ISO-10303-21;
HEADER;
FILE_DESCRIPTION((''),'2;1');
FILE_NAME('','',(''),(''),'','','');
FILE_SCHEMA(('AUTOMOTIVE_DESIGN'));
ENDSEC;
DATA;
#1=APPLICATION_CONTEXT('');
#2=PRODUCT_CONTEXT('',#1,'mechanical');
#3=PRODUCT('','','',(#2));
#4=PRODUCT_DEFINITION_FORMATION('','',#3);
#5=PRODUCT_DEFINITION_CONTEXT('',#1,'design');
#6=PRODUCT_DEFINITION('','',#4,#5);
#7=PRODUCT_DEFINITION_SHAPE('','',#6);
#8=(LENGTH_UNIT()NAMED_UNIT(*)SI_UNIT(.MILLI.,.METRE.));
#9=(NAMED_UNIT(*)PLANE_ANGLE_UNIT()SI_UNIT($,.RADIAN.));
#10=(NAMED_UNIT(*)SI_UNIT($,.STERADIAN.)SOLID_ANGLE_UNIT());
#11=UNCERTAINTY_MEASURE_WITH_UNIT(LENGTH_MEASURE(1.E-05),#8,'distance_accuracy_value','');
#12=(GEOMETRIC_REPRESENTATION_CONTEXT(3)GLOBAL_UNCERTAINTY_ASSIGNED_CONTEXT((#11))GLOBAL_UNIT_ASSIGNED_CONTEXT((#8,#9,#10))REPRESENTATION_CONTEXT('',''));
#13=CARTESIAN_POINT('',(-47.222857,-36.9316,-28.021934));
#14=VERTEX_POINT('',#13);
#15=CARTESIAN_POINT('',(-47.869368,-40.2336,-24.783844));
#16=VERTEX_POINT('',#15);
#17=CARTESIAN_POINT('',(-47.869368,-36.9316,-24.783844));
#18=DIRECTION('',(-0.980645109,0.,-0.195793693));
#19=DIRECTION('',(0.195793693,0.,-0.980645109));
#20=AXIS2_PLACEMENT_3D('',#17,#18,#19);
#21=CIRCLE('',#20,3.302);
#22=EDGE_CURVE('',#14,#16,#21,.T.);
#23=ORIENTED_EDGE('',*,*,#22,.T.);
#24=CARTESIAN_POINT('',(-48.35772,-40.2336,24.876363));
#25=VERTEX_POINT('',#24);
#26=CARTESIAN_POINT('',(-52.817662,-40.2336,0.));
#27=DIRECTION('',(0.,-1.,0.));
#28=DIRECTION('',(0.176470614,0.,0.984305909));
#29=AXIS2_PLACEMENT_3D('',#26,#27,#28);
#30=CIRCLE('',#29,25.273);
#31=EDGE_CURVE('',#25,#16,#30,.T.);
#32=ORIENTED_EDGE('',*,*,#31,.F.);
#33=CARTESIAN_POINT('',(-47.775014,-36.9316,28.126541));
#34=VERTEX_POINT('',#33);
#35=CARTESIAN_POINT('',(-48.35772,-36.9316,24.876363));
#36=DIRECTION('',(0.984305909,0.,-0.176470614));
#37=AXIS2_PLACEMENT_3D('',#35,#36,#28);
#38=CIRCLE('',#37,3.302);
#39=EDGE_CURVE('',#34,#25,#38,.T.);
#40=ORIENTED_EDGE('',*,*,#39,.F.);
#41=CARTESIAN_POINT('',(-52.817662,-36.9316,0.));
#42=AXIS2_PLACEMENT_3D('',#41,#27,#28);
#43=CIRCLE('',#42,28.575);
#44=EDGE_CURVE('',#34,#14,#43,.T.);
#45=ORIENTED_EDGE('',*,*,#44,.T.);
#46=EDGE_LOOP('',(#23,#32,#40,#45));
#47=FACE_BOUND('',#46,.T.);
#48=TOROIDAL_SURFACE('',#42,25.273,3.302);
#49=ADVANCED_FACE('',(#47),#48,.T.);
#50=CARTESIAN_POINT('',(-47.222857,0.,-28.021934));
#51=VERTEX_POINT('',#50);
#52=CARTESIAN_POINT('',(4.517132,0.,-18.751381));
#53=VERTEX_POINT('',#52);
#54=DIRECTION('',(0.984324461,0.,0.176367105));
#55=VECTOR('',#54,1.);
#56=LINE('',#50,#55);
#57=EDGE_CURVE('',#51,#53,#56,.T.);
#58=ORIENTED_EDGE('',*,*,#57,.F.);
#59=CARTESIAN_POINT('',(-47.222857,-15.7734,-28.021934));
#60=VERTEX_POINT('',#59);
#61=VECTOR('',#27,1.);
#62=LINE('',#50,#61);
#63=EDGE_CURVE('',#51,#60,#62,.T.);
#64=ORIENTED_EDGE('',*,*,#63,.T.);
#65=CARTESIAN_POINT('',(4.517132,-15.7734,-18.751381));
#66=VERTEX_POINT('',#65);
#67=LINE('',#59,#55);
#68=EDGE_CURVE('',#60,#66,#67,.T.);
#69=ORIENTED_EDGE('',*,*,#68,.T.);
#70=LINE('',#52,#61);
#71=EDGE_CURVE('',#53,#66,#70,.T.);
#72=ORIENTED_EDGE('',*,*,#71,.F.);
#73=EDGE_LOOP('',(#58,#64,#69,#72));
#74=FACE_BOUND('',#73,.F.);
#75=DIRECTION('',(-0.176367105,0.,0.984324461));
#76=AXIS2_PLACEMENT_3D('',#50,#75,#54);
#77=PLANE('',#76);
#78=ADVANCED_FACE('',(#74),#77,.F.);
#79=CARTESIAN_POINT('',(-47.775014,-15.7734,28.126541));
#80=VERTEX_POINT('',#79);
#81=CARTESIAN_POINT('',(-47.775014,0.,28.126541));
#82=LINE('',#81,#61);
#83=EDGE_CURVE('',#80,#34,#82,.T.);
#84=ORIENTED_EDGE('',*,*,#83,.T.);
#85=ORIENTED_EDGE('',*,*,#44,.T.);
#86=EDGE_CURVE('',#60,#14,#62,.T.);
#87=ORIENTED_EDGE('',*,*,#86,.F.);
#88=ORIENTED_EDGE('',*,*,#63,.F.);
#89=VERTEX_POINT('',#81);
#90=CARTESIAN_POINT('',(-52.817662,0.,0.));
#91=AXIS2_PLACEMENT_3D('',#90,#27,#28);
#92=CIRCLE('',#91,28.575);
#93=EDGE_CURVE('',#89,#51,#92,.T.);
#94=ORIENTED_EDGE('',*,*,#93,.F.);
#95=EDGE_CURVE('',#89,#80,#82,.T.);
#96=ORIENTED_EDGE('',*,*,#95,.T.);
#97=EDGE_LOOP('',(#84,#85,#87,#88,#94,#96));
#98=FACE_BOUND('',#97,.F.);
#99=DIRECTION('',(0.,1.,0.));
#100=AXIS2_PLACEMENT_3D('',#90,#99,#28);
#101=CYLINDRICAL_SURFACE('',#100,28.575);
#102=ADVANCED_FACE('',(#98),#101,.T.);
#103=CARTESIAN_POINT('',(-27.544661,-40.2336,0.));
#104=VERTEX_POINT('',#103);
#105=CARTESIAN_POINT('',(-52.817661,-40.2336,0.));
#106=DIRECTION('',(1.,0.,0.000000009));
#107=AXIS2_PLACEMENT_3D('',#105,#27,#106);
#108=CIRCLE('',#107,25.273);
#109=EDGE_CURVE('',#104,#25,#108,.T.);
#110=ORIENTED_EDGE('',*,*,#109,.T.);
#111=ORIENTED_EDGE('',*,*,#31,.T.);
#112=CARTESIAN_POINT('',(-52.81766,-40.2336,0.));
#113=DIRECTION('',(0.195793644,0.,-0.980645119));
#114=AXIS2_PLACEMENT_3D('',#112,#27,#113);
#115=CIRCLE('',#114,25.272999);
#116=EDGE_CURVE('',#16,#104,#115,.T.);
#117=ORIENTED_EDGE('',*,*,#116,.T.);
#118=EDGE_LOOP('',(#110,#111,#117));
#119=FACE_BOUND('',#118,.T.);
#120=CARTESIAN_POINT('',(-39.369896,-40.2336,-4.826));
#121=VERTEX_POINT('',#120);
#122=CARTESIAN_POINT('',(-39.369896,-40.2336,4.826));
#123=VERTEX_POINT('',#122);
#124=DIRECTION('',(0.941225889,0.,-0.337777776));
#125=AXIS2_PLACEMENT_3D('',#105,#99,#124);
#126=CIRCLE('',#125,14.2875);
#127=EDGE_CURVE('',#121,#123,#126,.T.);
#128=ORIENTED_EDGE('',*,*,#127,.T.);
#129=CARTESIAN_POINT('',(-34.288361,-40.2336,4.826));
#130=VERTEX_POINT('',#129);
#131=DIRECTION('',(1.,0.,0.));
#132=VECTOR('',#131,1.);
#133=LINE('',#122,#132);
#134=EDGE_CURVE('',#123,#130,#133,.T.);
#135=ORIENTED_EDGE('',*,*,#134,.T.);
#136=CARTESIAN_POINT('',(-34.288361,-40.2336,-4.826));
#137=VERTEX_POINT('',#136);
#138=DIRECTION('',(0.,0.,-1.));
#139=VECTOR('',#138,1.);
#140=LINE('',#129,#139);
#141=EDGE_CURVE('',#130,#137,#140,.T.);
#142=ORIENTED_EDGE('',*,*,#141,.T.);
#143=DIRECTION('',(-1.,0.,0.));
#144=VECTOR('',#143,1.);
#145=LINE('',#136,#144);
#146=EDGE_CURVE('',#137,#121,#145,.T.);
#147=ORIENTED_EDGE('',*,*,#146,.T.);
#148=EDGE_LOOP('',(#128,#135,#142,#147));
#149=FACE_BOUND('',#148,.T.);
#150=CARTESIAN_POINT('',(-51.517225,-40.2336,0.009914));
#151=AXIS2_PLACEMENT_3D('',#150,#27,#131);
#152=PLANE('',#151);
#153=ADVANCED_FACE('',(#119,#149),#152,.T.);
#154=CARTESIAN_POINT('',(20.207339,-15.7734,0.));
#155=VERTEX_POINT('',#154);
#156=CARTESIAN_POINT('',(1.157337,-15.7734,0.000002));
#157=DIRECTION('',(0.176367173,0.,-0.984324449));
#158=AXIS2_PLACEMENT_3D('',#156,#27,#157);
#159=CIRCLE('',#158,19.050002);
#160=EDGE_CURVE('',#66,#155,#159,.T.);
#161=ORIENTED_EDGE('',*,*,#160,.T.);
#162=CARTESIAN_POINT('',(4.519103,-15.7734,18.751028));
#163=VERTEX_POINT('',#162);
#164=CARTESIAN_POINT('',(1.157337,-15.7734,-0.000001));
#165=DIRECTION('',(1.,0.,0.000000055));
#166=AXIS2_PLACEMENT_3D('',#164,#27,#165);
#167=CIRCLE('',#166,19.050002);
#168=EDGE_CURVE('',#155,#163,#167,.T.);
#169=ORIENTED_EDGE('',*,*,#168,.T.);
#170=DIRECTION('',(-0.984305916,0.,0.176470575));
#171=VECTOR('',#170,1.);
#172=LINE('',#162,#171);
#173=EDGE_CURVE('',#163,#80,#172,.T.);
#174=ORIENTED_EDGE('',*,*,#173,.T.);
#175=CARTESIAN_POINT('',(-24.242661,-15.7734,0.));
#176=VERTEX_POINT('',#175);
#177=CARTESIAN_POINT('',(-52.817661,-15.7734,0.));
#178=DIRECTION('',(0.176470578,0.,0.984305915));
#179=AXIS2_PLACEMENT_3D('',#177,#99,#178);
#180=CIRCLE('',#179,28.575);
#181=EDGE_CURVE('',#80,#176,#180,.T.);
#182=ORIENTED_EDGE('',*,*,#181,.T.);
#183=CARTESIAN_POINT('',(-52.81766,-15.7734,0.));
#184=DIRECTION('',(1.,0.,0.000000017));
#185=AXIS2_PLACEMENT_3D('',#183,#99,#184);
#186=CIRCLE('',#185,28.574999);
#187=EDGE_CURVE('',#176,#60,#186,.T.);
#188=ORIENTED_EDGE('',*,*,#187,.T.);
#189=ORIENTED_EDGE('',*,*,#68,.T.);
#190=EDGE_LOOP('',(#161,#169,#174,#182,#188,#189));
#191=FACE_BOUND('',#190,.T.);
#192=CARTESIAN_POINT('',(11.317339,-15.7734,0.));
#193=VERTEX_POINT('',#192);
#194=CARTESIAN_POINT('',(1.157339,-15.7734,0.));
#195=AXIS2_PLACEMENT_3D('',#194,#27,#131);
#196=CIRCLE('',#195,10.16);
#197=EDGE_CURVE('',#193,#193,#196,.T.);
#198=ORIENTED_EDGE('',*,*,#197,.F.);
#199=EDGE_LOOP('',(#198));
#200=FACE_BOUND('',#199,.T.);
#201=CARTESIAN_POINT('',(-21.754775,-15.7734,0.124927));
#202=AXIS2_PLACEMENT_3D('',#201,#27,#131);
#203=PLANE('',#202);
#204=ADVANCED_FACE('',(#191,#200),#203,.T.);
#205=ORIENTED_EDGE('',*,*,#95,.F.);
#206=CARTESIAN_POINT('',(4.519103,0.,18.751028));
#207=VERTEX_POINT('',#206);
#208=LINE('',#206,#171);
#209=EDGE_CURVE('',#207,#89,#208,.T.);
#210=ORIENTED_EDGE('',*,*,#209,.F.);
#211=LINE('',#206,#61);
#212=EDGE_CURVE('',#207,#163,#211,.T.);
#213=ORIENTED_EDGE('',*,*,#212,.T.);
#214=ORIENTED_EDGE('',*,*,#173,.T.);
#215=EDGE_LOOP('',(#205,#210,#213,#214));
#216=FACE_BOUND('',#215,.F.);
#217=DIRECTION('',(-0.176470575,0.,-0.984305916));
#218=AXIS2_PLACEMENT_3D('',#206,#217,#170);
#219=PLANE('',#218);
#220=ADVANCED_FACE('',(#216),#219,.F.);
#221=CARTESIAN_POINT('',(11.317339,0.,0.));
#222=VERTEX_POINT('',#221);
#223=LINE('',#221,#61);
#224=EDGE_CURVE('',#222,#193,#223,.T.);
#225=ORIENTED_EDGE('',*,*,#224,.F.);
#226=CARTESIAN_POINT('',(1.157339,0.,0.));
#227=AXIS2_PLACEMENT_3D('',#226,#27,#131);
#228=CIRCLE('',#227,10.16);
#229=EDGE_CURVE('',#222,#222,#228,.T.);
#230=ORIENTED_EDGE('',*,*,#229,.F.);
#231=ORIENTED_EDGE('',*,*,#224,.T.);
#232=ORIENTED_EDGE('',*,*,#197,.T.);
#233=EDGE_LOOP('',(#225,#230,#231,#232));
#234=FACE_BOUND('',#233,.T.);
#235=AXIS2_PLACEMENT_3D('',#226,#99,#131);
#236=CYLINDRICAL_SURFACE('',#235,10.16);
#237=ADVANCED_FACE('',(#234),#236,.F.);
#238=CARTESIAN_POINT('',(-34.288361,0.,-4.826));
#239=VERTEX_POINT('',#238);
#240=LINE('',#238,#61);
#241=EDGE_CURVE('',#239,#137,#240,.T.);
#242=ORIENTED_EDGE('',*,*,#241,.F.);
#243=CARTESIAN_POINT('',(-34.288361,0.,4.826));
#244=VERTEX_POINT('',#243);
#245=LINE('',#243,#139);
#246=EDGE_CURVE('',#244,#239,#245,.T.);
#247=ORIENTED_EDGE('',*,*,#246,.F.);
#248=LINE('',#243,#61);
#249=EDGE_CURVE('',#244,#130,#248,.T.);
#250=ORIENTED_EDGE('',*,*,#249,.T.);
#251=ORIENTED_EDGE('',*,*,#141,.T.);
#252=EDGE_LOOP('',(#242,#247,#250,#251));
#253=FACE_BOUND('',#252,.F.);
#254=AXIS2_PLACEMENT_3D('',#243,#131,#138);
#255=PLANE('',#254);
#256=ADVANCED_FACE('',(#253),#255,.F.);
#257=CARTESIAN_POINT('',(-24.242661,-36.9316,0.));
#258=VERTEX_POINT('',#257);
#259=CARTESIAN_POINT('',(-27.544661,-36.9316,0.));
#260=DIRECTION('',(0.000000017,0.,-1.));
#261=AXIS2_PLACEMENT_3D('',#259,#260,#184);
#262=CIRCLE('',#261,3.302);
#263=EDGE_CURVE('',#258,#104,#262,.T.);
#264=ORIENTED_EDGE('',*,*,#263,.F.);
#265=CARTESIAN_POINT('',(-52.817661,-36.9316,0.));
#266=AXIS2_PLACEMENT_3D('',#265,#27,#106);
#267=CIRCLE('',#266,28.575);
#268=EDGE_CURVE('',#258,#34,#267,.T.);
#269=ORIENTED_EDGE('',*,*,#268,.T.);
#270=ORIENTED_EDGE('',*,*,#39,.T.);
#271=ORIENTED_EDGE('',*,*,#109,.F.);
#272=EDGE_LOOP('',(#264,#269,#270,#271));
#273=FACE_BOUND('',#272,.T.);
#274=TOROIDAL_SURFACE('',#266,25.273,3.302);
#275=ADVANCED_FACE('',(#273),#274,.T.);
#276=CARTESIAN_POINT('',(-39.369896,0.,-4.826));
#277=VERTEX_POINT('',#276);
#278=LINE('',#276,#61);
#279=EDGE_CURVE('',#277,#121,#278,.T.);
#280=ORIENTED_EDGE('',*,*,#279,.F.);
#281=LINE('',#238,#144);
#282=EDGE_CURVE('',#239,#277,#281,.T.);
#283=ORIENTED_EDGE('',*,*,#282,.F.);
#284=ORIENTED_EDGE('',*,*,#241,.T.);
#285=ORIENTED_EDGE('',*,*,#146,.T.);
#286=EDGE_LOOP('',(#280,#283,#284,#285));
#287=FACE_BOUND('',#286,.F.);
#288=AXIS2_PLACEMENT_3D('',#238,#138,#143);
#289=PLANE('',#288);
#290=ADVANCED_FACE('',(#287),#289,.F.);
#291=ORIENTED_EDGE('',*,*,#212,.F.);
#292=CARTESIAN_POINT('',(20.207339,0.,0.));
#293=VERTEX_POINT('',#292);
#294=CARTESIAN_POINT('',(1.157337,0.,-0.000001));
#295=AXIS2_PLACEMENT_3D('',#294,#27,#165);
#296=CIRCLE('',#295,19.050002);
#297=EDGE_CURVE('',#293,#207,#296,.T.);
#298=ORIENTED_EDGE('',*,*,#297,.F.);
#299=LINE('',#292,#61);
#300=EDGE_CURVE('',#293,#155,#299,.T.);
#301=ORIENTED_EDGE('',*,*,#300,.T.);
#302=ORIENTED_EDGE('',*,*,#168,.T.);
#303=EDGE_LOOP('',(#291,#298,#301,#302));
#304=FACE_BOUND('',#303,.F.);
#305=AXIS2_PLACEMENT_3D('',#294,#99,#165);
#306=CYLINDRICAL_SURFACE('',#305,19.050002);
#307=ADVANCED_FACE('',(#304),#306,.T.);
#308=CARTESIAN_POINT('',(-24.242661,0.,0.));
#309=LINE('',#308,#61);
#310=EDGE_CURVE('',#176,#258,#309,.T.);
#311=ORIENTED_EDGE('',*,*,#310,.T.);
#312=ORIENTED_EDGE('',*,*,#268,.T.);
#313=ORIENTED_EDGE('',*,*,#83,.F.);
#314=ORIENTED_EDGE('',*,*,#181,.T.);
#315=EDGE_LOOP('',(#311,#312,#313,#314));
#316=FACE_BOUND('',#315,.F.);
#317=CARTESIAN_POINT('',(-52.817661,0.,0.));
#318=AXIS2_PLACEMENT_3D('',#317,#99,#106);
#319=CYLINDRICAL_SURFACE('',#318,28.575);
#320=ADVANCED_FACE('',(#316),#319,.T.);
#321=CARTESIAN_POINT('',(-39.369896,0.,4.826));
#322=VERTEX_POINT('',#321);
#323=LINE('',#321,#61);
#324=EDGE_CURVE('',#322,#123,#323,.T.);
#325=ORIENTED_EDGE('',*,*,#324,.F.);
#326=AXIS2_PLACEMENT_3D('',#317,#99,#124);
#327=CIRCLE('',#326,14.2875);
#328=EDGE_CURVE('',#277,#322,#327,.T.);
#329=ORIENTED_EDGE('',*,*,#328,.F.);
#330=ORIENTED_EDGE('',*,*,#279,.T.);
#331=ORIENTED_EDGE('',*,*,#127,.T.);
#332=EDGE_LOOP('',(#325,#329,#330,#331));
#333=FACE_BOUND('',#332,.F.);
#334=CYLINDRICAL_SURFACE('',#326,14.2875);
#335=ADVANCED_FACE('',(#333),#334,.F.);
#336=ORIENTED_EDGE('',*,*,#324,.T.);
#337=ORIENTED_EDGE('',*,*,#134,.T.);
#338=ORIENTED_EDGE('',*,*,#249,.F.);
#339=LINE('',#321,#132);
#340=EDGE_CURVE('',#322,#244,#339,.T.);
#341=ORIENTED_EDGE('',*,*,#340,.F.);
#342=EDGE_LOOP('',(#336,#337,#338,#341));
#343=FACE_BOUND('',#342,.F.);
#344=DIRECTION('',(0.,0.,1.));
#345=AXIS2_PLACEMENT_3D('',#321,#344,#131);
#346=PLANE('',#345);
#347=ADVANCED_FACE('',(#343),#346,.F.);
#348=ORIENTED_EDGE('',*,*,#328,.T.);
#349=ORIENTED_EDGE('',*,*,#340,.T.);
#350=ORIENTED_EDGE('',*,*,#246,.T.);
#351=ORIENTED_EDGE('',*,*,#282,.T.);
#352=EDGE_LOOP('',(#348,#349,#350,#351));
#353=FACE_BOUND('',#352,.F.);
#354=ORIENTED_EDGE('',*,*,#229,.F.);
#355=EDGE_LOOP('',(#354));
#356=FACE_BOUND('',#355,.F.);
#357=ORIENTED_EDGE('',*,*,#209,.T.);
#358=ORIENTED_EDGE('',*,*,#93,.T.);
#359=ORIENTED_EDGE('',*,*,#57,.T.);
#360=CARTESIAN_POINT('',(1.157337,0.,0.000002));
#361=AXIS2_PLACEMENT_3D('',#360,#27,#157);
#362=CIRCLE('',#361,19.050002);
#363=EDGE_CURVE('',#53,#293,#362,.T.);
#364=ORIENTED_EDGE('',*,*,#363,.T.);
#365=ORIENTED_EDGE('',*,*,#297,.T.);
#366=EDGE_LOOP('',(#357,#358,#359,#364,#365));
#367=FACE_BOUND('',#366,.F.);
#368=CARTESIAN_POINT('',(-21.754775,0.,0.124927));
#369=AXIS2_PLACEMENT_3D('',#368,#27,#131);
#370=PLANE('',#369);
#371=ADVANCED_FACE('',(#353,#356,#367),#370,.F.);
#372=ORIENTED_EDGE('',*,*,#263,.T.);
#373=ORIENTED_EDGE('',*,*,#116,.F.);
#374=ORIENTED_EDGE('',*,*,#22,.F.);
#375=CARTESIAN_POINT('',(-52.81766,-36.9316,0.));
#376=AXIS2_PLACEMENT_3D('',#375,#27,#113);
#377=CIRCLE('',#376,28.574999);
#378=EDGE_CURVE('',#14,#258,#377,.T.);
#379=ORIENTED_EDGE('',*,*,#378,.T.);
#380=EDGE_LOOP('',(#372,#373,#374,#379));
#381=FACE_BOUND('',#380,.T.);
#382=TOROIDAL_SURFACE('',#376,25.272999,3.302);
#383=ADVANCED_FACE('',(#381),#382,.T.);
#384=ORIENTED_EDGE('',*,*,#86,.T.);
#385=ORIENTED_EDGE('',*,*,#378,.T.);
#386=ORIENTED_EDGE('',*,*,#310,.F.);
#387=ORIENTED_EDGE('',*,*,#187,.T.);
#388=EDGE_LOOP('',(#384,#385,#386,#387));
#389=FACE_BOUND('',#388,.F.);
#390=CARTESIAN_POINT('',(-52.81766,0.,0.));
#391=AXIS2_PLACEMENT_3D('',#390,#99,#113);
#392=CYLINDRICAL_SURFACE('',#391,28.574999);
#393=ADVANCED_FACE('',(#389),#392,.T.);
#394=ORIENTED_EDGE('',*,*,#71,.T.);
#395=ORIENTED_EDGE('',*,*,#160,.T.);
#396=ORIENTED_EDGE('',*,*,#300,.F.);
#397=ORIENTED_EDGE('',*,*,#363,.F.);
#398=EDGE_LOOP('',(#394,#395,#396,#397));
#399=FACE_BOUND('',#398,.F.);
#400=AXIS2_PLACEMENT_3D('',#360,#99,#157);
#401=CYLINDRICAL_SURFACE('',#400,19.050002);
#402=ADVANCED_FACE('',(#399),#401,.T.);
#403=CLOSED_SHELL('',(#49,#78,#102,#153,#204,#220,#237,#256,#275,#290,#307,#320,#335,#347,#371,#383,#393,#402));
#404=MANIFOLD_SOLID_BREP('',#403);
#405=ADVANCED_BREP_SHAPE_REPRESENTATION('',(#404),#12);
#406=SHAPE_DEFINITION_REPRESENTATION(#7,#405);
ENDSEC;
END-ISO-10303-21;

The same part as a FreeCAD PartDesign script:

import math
import FreeCAD as App
import Part
import Sketcher
from FreeCAD import Vector
Q = App.Units.Quantity


def edges_at(feature, points):
    """Names of the edges that pass closest to the given points."""
    edges = feature.Shape.Edges
    near = lambda p: min(range(len(edges)), key=lambda i: edges[i].distToShape(Part.Vertex(*p))[0])
    return sorted({f"Edge{near(p) + 1}" for p in points})

doc = App.newDocument("Part")
body = doc.addObject("PartDesign::Body", "Body")

sketch1 = doc.addObject("Sketcher::SketchObject", "Sketch")
body.addObject(sketch1)
sketch1.AttachmentSupport = (doc.XZ_Plane, [""])
sketch1.MapMode = "FlatFace"
sketch1.addGeometry(Part.ArcOfCircle(Part.Circle(Vector(-53, 0, 0), Vector(0, 0, 1), 29), math.radians(-79), math.radians(0)), False)
sketch1.addGeometry(Part.ArcOfCircle(Part.Circle(Vector(-53, 0, 0), Vector(0, 0, 1), 29), math.radians(0), math.radians(80)), False)
sketch1.addGeometry(Part.ArcOfCircle(Part.Circle(Vector(-53, 0, 0), Vector(0, 0, 1), 29), math.radians(80), math.radians(281)), False)
sketch1.addGeometry(Part.LineSegment(Vector(-34, -5, 0), Vector(-39, -5, 0)), False)
sketch1.addGeometry(Part.ArcOfCircle(Part.Circle(Vector(-53, 0, 0), Vector(0, 0, 1), 14), math.radians(20), math.radians(340)), False)
sketch1.addGeometry(Part.LineSegment(Vector(-39, 5, 0), Vector(-34, 5, 0)), False)
sketch1.addGeometry(Part.LineSegment(Vector(-34, 5, 0), Vector(-34, -5, 0)), False)
sketch1.addConstraint(Sketcher.Constraint("Tangent", 0, 2, 1, 1))
sketch1.addConstraint(Sketcher.Constraint("Tangent", 1, 2, 2, 1))
sketch1.addConstraint(Sketcher.Constraint("Tangent", 2, 2, 0, 1))
sketch1.addConstraint(Sketcher.Constraint("Coincident", 3, 2, 4, 2))
sketch1.addConstraint(Sketcher.Constraint("Coincident", 4, 1, 5, 1))
sketch1.addConstraint(Sketcher.Constraint("Coincident", 5, 2, 6, 1))
sketch1.addConstraint(Sketcher.Constraint("Coincident", 6, 2, 3, 1))
sketch1.addConstraint(Sketcher.Constraint("Horizontal", 3))
sketch1.addConstraint(Sketcher.Constraint("Horizontal", 5))
sketch1.addConstraint(Sketcher.Constraint("Vertical", 6))
sketch1.addConstraint(Sketcher.Constraint("Coincident", 4, 3, 0, 3))
sketch1.addConstraint(Sketcher.Constraint("Symmetric", 3, 2, 4, 1, -1))
sketch1.addConstraint(Sketcher.Constraint("PointOnObject", 0, 2, -1))
sketch1.addConstraint(Sketcher.Constraint("Radius", 0, Q("1.125 in")))
sketch1.addConstraint(Sketcher.Constraint("Radius", 4, Q("0.5625 in")))
sketch1.addConstraint(Sketcher.Constraint("DistanceY", 6, 2, 6, 1, Q("0.38 in")))
sketch1.addConstraint(Sketcher.Constraint("DistanceX", 5, 2, 0, 2, Q("0.3955 in")))
sketch1.addConstraint(Sketcher.Constraint("DistanceX", 0, 3, -1, 1, Q("52.81766 mm")))
sketch1.addConstraint(Sketcher.Constraint("DistanceY", -1, 1, 1, 2, Q("28.126541 mm")))
sketch1.addConstraint(Sketcher.Constraint("DistanceX", 2, 2, -1, 1, Q("47.222857 mm")))
pad1 = doc.addObject("PartDesign::Pad", "Pad")
body.addObject(pad1)
pad1.Profile = sketch1
pad1.Length = Q("1.584 in")

sketch2 = doc.addObject("Sketcher::SketchObject", "Sketch001")
body.addObject(sketch2)
sketch2.AttachmentSupport = (doc.XZ_Plane, [""])
sketch2.MapMode = "FlatFace"
sketch2.addGeometry(Part.ArcOfCircle(Part.Circle(Vector(-53, 0, 0), Vector(0, 0, 1), 29), math.radians(0), math.radians(80)), False)
sketch2.addGeometry(Part.ArcOfCircle(Part.Circle(Vector(-53, 0, 0), Vector(0, 0, 1), 29), math.radians(-79), math.radians(0)), False)
sketch2.addGeometry(Part.LineSegment(Vector(-47, -28, 0), Vector(5, -19, 0)), False)
sketch2.addGeometry(Part.ArcOfCircle(Part.Circle(Vector(1, 0, 0), Vector(0, 0, 1), 19), math.radians(-80), math.radians(0)), False)
sketch2.addGeometry(Part.ArcOfCircle(Part.Circle(Vector(1, 0, 0), Vector(0, 0, 1), 19), math.radians(0), math.radians(80)), False)
sketch2.addGeometry(Part.LineSegment(Vector(5, 19, 0), Vector(-48, 28, 0)), False)
sketch2.addGeometry(Part.Circle(Vector(1, 0, 0), Vector(0, 0, 1), 10), False)
sketch2.addConstraint(Sketcher.Constraint("Tangent", 0, 1, 1, 2))
sketch2.addConstraint(Sketcher.Constraint("Coincident", 1, 1, 2, 1))
sketch2.addConstraint(Sketcher.Constraint("Tangent", 2, 2, 3, 1))
sketch2.addConstraint(Sketcher.Constraint("Tangent", 3, 2, 4, 1))
sketch2.addConstraint(Sketcher.Constraint("Tangent", 4, 2, 5, 1))
sketch2.addConstraint(Sketcher.Constraint("Tangent", 5, 2, 0, 2))
sketch2.addConstraint(Sketcher.Constraint("Coincident", 6, 3, 3, 3))
sketch2.addConstraint(Sketcher.Constraint("Equal", 0, 1))
sketch2.addConstraint(Sketcher.Constraint("Equal", 3, 4))
sketch2.addConstraint(Sketcher.Constraint("PointOnObject", 0, 3, -1))
sketch2.addConstraint(Sketcher.Constraint("PointOnObject", 3, 3, -1))
sketch2.addConstraint(Sketcher.Constraint("PointOnObject", 0, 1, -1))
sketch2.addConstraint(Sketcher.Constraint("PointOnObject", 3, 2, -1))
sketch2.addConstraint(Sketcher.Constraint("Diameter", 6, Q("0.8 in")))
sketch2.addConstraint(Sketcher.Constraint("Radius", 3, Q("0.7500001 in")))
sketch2.addConstraint(Sketcher.Constraint("Radius", 0, Q("1.125 in")))
sketch2.addConstraint(Sketcher.Constraint("DistanceX", 0, 1, 3, 3, Q("0.9999999 in")))
sketch2.addConstraint(Sketcher.Constraint("DistanceX", 0, 3, -1, 1, Q("52.817661 mm")))
sketch2.addConstraint(Sketcher.Constraint("DistanceX", 1, 1, 2, 2, Q("51.739989 mm")))
pad2 = doc.addObject("PartDesign::Pad", "Pad001")
body.addObject(pad2)
pad2.Profile = sketch2
pad2.Length = Q("0.621 in")
doc.recompute()

fillet = doc.addObject("PartDesign::Fillet", "Fillet")
body.addObject(fillet)
fillet.Base = (pad2, edges_at(pad2, [(-81.391, -40.234, -0.281)]))
fillet.Radius = Q("0.13 in")

doc.recompute()
